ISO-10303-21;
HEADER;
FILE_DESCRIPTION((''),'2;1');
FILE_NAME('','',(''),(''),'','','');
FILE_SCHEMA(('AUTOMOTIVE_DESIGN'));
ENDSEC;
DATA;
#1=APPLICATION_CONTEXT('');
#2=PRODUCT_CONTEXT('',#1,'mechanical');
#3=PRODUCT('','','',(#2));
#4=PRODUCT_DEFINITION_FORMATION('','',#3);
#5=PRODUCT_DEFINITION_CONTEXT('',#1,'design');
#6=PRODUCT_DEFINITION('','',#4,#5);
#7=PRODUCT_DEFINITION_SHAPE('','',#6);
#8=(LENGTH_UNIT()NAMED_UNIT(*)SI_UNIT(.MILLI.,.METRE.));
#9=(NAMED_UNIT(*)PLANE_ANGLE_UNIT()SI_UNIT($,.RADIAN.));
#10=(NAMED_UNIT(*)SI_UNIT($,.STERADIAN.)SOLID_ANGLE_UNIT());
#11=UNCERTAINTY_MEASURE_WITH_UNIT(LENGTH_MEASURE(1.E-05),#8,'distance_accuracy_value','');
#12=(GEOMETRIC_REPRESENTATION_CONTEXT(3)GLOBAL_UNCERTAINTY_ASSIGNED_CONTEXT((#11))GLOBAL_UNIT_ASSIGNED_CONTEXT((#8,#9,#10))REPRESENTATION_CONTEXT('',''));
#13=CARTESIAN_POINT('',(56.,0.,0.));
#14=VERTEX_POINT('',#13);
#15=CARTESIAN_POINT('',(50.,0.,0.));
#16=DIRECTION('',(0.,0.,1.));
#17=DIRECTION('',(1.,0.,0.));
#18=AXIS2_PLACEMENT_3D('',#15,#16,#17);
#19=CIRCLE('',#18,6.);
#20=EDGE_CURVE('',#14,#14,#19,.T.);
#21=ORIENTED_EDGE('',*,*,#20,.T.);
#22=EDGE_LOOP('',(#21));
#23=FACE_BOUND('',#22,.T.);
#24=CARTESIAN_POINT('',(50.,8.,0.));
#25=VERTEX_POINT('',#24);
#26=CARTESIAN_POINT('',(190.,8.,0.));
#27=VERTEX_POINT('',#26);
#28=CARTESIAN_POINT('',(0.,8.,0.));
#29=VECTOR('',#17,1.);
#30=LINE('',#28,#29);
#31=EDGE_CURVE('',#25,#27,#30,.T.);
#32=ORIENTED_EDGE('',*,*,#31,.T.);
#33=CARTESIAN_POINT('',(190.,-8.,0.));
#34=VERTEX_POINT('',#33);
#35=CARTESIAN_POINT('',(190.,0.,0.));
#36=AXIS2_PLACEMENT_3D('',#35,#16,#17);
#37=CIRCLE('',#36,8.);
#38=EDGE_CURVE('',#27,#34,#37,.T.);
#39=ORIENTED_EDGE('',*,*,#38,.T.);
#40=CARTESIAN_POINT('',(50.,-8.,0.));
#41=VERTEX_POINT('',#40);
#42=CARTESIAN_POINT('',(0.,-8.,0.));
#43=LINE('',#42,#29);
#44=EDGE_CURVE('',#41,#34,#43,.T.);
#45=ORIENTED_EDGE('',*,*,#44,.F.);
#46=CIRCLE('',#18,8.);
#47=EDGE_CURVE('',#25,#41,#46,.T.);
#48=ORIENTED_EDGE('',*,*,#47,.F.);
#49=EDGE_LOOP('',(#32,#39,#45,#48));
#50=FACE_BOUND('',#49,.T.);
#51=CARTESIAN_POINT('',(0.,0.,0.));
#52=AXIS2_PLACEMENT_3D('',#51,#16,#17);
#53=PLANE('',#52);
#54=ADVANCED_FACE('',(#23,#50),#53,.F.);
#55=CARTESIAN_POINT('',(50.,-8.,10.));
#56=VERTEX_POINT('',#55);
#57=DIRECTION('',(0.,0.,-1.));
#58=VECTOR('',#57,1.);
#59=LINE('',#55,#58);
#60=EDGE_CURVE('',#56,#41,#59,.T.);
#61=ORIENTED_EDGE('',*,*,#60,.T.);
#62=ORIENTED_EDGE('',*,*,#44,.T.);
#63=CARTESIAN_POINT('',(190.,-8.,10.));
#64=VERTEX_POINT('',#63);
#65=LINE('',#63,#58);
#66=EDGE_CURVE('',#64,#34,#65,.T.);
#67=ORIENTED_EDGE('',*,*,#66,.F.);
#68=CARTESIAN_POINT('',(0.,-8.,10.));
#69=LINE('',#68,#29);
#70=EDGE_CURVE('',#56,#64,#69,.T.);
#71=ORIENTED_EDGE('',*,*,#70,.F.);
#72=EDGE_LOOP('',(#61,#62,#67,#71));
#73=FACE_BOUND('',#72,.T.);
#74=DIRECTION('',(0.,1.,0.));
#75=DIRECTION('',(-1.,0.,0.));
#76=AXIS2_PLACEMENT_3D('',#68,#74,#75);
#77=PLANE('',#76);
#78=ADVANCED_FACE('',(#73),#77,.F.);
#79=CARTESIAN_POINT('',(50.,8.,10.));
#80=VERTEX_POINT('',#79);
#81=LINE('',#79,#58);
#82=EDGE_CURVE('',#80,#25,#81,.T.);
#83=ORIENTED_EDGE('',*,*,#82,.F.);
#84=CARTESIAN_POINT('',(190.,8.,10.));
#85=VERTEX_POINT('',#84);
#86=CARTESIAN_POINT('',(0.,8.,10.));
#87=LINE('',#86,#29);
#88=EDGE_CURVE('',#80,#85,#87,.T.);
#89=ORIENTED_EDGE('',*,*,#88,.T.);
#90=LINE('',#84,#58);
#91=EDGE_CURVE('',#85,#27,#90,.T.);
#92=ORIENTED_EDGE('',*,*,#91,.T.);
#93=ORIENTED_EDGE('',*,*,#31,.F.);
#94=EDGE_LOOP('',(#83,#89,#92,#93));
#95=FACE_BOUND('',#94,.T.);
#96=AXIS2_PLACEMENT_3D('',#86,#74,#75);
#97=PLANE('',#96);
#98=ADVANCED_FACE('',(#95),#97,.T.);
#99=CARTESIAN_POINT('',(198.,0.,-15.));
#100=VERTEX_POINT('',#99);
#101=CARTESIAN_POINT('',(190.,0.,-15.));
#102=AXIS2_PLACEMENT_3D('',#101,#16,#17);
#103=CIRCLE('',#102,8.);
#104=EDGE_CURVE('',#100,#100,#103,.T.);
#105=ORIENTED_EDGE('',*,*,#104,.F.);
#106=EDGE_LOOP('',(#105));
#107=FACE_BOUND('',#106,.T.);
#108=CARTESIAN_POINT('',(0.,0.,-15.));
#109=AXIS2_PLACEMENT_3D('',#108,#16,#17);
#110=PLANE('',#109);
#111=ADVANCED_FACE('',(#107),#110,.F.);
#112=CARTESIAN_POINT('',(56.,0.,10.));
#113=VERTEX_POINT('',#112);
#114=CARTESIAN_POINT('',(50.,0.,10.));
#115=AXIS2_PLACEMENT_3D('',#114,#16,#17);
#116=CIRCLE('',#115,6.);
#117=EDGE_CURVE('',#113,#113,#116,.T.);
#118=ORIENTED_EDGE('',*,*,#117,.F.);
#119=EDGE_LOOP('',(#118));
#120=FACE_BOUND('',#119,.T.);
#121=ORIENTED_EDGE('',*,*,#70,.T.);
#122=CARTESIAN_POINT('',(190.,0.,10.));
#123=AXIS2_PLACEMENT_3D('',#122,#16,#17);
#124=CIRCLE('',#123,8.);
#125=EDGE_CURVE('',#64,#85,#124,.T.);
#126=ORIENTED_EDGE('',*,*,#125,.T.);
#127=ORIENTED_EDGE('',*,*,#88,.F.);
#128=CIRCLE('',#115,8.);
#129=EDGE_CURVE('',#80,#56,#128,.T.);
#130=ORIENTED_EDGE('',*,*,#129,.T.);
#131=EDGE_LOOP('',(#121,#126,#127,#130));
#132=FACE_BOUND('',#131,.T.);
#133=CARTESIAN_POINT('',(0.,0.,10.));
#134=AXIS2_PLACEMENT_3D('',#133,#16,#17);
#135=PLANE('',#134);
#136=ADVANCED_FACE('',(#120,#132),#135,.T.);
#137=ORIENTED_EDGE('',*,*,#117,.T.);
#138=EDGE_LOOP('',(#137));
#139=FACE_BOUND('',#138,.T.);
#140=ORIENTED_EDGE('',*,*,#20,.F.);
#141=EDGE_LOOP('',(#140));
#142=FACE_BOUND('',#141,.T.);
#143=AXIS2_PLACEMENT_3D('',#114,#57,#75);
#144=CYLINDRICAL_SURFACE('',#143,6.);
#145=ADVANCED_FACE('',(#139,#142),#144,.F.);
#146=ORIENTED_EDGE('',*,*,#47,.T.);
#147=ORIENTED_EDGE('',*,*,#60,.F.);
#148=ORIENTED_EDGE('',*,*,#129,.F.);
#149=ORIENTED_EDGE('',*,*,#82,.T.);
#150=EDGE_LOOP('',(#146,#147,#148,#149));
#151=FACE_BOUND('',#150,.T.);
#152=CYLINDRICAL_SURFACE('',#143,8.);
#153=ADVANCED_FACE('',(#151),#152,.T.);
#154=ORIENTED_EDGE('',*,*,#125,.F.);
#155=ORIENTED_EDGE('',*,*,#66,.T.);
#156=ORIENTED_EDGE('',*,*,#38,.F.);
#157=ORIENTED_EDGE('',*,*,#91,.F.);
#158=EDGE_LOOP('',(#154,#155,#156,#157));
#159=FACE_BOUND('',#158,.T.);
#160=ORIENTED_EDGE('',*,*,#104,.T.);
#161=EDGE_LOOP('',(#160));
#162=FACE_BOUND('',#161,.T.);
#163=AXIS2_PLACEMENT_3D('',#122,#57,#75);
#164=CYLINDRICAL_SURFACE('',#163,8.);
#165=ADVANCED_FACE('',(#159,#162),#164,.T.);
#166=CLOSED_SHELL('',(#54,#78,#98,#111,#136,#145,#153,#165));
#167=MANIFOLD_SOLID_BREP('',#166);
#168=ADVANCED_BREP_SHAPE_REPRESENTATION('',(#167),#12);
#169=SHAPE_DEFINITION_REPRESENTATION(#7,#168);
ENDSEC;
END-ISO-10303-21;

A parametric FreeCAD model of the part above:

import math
import FreeCAD as App
import Part
import Sketcher
from FreeCAD import Vector

doc = App.newDocument("Part")
body = doc.addObject("PartDesign::Body", "Body")

# Sketch on XY plane
sketch1 = doc.addObject("Sketcher::SketchObject", "Sketch")
body.addObject(sketch1)
sketch1.AttachmentSupport = (doc.XY_Plane, [""])
sketch1.MapMode = "FlatFace"
sketch1.addGeometry([
    Part.LineSegment(Vector(190, 8, 0), Vector(50, 8, 0)),  # 0
    Part.ArcOfCircle(Part.Circle(Vector(50, 0, 0), Vector(0, 0, 1), 8), math.radians(90), math.radians(270)),  # 1
    Part.LineSegment(Vector(50, -8, 0), Vector(190, -8, 0)),  # 2
    Part.ArcOfCircle(Part.Circle(Vector(190, 0, 0), Vector(0, 0, 1), 8), math.radians(-90), math.radians(90)),  # 3
    Part.Circle(Vector(50, 0, 0), Vector(0, 0, 1), 6),  # 4
], False)
sketch1.addConstraint([
    Sketcher.Constraint("Tangent", 0, 2, 1, 1),
    Sketcher.Constraint("Tangent", 1, 2, 2, 1),
    Sketcher.Constraint("Tangent", 2, 2, 3, 1),
    Sketcher.Constraint("Tangent", 3, 2, 0, 1),
    Sketcher.Constraint("Horizontal", 0),
    Sketcher.Constraint("Horizontal", 2),
    Sketcher.Constraint("Coincident", 4, 3, 1, 3),
    Sketcher.Constraint("PointOnObject", 1, 3, -1),
    Sketcher.Constraint("Diameter", 4, 12.0),
    Sketcher.Constraint("Radius", 1, 8.0),
    Sketcher.Constraint("DistanceX", 0, 2, 0, 1, 140.0),
    Sketcher.Constraint("DistanceX", -1, 1, 1, 3, 50.0),
])
pad1 = doc.addObject("PartDesign::Pad", "Pad")
body.addObject(pad1)
pad1.Profile = sketch1
pad1.Length = 10

# Sketch on XY plane
sketch2 = doc.addObject("Sketcher::SketchObject", "Sketch001")
body.addObject(sketch2)
sketch2.AttachmentSupport = (doc.XY_Plane, [""])
sketch2.MapMode = "FlatFace"
sketch2.addGeometry(Part.Circle(Vector(190, 0, 0), Vector(0, 0, 1), 8), False)
sketch2.addConstraint([
    Sketcher.Constraint("PointOnObject", 0, 3, -1),
    Sketcher.Constraint("Diameter", 0, 16.0),
    Sketcher.Constraint("DistanceX", -1, 1, 0, 3, 190.0),
])
pad2 = doc.addObject("PartDesign::Pad", "Pad001")
body.addObject(pad2)
pad2.Profile = sketch2
pad2.Length = 15
pad2.Reversed = True

doc.recompute()
